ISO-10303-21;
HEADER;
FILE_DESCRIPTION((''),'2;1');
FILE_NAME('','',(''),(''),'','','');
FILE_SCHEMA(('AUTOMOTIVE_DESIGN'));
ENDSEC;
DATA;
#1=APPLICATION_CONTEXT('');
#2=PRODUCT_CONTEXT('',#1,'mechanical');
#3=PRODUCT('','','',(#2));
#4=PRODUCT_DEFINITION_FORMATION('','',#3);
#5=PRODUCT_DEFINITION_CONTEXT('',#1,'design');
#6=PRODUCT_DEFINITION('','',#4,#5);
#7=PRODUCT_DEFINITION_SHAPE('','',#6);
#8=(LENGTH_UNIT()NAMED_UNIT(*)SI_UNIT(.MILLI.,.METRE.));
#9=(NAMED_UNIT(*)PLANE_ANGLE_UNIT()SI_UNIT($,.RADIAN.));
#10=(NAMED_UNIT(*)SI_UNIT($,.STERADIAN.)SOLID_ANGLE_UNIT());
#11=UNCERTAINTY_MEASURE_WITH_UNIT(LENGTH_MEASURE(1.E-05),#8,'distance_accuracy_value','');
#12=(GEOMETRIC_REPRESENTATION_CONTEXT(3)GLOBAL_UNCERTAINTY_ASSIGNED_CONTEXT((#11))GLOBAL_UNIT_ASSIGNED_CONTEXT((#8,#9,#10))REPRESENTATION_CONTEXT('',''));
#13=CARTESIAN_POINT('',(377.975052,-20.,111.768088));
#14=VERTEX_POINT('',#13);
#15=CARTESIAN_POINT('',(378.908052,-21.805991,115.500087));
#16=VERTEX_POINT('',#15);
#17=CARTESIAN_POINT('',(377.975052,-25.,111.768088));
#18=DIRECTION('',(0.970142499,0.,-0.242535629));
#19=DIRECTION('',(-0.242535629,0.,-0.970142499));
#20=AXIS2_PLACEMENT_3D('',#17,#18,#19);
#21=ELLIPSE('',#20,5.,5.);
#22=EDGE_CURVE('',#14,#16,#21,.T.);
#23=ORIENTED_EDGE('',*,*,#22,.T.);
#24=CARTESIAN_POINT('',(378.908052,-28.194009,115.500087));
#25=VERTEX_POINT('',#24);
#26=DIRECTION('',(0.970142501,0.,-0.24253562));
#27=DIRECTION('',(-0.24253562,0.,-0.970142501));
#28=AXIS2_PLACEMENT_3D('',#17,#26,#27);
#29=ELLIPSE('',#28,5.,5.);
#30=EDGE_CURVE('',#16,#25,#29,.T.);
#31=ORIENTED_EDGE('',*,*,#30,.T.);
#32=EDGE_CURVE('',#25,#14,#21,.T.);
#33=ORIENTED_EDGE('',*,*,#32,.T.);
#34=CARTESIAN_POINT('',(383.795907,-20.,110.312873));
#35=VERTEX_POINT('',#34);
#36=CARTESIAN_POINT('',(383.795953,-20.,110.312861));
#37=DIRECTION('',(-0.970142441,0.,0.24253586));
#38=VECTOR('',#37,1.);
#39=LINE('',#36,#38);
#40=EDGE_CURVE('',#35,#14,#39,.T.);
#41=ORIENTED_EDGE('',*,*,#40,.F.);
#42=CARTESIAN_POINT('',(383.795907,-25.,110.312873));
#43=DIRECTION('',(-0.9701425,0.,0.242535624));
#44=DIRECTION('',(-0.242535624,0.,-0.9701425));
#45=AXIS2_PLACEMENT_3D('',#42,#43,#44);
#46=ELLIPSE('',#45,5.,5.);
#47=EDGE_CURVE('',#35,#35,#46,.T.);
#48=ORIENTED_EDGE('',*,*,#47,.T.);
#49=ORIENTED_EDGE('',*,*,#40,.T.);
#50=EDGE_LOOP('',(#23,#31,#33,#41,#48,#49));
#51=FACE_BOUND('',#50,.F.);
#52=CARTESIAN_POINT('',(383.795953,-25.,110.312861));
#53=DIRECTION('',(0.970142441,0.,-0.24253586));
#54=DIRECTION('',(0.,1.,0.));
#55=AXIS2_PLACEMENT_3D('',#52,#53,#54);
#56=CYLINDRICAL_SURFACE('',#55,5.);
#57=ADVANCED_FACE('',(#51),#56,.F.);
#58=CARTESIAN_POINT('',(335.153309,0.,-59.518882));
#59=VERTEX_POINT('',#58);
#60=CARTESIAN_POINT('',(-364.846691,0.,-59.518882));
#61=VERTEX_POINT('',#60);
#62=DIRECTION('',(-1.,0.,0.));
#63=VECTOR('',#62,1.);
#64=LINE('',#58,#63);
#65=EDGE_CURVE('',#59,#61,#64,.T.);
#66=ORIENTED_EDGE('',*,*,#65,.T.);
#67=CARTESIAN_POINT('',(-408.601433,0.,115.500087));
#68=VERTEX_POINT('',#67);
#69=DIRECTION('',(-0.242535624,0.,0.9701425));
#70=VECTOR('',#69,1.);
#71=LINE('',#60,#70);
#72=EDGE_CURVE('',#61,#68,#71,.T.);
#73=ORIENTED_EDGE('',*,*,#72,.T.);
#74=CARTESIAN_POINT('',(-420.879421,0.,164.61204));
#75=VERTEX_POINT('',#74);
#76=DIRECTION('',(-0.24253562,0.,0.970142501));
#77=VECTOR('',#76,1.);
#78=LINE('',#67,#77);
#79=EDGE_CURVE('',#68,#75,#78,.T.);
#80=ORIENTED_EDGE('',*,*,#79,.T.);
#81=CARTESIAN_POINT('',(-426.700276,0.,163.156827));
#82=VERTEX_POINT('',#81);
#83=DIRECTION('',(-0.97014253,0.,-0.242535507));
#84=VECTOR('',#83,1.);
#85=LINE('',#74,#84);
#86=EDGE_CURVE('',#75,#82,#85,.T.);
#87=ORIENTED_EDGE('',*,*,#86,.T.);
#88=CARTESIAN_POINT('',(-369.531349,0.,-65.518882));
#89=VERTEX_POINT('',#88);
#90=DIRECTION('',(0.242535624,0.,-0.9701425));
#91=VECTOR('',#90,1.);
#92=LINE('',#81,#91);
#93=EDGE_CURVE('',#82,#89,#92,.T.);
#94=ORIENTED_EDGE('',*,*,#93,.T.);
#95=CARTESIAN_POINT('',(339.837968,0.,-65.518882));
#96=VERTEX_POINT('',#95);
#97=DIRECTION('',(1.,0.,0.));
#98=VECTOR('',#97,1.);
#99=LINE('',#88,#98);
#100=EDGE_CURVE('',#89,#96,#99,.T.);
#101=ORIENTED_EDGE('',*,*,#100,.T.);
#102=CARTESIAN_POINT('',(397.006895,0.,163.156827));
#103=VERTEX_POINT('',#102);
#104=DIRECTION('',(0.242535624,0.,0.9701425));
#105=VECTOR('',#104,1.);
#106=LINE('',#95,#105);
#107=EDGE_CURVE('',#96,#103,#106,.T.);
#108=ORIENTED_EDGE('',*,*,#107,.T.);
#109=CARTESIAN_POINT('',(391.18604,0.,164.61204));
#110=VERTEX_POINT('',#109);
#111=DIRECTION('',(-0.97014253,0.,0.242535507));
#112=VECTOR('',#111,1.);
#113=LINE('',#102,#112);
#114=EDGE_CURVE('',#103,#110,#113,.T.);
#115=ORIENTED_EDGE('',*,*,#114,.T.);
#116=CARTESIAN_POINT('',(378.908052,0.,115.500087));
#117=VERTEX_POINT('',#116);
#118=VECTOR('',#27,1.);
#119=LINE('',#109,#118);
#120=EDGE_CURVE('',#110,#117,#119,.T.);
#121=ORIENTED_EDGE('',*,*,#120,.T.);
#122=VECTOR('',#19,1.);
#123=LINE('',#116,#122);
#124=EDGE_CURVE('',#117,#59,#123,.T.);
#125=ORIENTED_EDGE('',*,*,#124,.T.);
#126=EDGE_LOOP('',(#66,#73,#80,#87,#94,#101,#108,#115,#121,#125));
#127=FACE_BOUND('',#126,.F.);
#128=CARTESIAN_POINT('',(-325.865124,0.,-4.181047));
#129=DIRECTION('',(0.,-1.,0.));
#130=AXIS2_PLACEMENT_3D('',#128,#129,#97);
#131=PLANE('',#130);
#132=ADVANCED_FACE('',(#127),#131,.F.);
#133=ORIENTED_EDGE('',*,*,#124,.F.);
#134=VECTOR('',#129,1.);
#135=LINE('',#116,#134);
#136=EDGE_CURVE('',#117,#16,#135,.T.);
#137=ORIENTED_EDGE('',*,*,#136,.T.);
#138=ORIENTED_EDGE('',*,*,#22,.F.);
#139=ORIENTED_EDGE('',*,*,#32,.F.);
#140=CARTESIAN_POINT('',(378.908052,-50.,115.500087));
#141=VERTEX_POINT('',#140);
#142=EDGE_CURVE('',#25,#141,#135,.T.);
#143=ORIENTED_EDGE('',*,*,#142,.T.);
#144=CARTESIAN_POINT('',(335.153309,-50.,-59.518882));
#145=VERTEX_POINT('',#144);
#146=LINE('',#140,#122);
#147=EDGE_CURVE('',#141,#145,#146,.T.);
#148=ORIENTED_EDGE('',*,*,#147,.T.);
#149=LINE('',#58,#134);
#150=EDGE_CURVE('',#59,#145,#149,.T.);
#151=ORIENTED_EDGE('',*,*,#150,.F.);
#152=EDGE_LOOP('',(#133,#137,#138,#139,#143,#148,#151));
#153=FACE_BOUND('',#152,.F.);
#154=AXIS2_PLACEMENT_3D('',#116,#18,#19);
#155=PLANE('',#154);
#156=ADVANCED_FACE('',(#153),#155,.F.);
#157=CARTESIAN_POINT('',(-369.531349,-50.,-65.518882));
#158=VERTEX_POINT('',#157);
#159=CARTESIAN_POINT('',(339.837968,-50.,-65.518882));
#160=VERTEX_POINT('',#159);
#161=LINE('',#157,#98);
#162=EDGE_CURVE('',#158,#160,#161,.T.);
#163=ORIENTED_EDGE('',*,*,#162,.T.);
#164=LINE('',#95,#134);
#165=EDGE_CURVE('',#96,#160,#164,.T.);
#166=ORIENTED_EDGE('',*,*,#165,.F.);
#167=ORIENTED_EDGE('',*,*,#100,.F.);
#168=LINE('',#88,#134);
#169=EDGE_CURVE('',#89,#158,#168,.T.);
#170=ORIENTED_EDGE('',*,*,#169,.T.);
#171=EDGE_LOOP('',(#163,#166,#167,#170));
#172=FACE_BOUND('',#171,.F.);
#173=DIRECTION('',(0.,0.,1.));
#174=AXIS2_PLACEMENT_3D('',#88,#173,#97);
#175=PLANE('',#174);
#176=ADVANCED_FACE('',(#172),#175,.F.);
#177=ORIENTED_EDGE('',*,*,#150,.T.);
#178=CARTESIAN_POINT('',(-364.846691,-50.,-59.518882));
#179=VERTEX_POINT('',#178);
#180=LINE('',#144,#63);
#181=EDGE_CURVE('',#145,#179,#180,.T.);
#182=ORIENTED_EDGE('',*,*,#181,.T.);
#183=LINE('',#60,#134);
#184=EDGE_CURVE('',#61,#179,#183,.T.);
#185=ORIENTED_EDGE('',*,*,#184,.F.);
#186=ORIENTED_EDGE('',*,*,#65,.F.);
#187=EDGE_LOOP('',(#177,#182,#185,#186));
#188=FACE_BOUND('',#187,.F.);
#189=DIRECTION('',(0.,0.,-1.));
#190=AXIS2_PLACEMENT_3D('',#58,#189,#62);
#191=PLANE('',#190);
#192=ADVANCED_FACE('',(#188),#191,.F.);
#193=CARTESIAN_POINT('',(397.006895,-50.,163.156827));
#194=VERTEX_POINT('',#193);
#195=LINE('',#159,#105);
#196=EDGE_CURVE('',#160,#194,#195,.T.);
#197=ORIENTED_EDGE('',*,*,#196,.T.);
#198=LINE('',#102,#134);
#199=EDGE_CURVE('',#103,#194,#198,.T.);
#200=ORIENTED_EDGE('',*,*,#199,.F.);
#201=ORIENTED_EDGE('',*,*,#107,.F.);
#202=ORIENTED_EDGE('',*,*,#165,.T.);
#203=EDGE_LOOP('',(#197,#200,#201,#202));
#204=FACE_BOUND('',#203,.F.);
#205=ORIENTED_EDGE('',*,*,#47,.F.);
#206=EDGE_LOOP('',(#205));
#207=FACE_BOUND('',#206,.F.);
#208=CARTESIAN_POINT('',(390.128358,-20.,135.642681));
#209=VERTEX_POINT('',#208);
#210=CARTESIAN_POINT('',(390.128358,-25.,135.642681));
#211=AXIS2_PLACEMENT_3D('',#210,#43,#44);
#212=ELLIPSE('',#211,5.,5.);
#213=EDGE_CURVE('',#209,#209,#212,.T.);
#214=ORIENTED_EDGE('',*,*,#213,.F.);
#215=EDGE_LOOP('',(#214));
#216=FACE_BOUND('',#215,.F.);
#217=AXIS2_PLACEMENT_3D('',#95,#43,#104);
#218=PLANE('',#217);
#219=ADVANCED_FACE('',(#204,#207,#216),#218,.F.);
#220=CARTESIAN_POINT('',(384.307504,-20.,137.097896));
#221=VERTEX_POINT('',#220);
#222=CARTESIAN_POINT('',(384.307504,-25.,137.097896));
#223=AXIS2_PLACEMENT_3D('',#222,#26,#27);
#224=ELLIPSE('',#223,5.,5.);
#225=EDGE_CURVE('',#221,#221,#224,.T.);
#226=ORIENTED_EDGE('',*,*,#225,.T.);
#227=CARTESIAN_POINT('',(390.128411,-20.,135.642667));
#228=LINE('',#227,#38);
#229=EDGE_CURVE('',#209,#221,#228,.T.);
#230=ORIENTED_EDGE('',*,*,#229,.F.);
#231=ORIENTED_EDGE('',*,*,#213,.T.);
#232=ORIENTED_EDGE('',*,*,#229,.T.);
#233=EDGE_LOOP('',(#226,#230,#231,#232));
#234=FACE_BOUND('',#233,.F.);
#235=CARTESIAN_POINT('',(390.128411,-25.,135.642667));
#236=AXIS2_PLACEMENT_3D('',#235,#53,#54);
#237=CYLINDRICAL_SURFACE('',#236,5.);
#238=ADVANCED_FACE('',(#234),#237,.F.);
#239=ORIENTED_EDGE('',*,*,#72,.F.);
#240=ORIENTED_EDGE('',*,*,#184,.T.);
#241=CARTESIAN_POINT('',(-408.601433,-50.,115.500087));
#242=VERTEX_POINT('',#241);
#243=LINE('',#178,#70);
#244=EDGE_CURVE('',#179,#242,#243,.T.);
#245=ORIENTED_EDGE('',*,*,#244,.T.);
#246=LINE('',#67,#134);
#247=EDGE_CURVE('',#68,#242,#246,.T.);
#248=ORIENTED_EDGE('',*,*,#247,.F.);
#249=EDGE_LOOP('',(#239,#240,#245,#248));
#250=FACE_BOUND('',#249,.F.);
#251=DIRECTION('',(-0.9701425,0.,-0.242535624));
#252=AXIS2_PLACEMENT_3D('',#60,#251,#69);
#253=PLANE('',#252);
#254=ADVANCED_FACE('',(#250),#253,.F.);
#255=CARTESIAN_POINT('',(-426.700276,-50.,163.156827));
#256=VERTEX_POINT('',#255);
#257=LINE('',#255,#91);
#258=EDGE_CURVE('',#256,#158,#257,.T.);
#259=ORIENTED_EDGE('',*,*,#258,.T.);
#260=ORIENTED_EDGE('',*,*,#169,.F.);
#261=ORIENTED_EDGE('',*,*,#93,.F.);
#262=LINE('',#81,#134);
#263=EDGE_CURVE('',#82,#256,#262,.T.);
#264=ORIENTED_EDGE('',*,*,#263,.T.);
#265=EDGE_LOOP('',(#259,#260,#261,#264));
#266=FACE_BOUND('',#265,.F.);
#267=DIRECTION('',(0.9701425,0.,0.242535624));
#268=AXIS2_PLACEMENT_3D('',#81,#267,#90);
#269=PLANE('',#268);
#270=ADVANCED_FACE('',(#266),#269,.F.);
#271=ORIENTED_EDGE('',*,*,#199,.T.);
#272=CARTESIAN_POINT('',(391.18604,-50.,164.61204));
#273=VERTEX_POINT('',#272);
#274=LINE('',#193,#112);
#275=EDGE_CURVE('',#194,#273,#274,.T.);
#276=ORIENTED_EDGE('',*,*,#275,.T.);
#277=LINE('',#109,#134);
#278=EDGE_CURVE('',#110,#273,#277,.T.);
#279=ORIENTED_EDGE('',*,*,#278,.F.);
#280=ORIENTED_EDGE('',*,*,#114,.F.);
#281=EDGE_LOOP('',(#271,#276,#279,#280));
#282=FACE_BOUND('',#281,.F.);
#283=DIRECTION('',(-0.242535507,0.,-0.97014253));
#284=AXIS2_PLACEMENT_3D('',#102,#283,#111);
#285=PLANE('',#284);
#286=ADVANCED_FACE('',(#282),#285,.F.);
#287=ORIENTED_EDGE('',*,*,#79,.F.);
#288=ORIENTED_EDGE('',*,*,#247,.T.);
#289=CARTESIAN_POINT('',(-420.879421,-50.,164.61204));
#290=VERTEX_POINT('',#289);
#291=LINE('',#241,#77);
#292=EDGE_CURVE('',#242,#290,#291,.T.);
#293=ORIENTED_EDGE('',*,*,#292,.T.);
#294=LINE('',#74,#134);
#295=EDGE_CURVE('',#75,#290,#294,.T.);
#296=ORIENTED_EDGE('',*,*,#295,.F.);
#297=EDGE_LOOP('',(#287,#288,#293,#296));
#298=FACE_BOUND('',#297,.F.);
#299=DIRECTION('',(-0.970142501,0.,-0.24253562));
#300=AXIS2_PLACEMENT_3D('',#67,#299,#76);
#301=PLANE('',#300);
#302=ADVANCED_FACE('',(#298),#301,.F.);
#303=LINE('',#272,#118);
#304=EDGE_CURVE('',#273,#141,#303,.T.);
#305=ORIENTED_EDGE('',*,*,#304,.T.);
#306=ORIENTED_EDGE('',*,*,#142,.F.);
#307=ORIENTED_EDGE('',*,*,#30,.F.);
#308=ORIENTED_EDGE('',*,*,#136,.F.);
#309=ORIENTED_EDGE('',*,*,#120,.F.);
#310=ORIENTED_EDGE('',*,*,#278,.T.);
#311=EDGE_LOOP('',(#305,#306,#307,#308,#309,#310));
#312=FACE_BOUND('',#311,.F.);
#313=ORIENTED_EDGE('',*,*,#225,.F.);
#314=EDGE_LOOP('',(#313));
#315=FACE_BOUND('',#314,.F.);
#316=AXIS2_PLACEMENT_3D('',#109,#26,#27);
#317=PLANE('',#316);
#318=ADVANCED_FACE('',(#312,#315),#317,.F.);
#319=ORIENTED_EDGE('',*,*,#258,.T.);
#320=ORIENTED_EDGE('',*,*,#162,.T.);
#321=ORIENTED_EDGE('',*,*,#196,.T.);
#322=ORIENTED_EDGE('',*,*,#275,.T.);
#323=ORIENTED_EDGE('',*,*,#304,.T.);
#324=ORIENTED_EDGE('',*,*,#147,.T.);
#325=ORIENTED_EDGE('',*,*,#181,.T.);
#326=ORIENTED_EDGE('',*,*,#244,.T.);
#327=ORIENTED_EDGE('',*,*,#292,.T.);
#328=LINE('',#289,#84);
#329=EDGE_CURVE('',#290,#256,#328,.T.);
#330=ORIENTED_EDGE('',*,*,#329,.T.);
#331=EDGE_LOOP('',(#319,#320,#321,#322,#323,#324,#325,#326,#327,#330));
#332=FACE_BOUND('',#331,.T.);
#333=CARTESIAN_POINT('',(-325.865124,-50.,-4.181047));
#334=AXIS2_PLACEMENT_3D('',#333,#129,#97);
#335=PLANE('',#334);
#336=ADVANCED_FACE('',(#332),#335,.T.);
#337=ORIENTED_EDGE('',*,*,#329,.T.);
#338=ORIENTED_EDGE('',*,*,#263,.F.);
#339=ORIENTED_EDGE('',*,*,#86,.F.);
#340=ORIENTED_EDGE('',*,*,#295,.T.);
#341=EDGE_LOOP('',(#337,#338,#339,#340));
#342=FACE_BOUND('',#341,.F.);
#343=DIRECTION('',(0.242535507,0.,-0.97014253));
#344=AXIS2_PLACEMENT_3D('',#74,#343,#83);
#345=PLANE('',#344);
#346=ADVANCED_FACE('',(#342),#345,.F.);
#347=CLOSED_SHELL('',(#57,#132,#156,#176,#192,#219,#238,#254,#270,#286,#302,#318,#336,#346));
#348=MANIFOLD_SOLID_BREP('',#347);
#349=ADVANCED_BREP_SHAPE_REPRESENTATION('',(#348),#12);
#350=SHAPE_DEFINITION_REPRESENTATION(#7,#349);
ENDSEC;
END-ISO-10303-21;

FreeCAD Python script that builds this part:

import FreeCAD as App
import Part
import Sketcher

V = App.Vector
Q = App.Units.Quantity

doc = App.newDocument("Part")
body = doc.addObject("PartDesign::Body", "Body")

# Sketch on XZ plane
sketch1 = doc.addObject("Sketcher::SketchObject", "Sketch")
body.addObject(sketch1)
sketch1.AttachmentSupport = (doc.XZ_Plane, [""])
sketch1.MapMode = "FlatFace"
sketch1.addGeometry([
    Part.LineSegment(V(-364.846691, -59.518882, 0), V(-408.601433, 115.500087, 0)),  # 0
    Part.LineSegment(V(-408.601433, 115.500087, 0), V(-420.879421, 164.61204, 0)),  # 1
    Part.LineSegment(V(-420.879421, 164.61204, 0), V(-426.700276, 163.156827, 0)),  # 2
    Part.LineSegment(V(-426.700276, 163.156827, 0), V(-369.531349, -65.518882, 0)),  # 3
    Part.LineSegment(V(-369.531349, -65.518882, 0), V(339.837968, -65.518882, 0)),  # 4
    Part.LineSegment(V(339.837968, -65.518882, 0), V(397.006895, 163.156827, 0)),  # 5
    Part.LineSegment(V(397.006895, 163.156827, 0), V(391.18604, 164.61204, 0)),  # 6
    Part.LineSegment(V(391.18604, 164.61204, 0), V(378.908052, 115.500087, 0)),  # 7
    Part.LineSegment(V(378.908052, 115.500087, 0), V(335.153309, -59.518882, 0)),  # 8
    Part.LineSegment(V(335.153309, -59.518882, 0), V(-364.846691, -59.518882, 0)),  # 9
], False)
sketch1.addConstraint([
    Sketcher.Constraint("Coincident", 0, 2, 1, 1),
    Sketcher.Constraint("Coincident", 1, 2, 2, 1),
    Sketcher.Constraint("Coincident", 2, 2, 3, 1),
    Sketcher.Constraint("Coincident", 3, 2, 4, 1),
    Sketcher.Constraint("Coincident", 4, 2, 5, 1),
    Sketcher.Constraint("Coincident", 5, 2, 6, 1),
    Sketcher.Constraint("Coincident", 6, 2, 7, 1),
    Sketcher.Constraint("Coincident", 7, 2, 8, 1),
    Sketcher.Constraint("Coincident", 8, 2, 9, 1),
    Sketcher.Constraint("Coincident", 9, 2, 0, 1),
    Sketcher.Constraint("Horizontal", 4),
    Sketcher.Constraint("Horizontal", 9),
    Sketcher.Constraint("Parallel", 0, 1),
    Sketcher.Constraint("Perpendicular", 1, 2),
    Sketcher.Constraint("Perpendicular", 2, 3),
    Sketcher.Constraint("Perpendicular", 5, 6),
    Sketcher.Constraint("Perpendicular", 6, 7),
    Sketcher.Constraint("Parallel", 7, 8),
    Sketcher.Constraint("Horizontal", 2, 2, 5, 2),
    Sketcher.Constraint("Horizontal", 1, 2, 6, 2),
    Sketcher.Constraint("Horizontal", 0, 2, 7, 2),
    Sketcher.Constraint("Equal", 3, 5),
    Sketcher.Constraint("DistanceX", 9, 2, 9, 1, Q("700 mm")),
    Sketcher.Constraint("Distance", 2, Q("6 mm")),
    Sketcher.Constraint("DistanceY", 4, 2, 8, 2, Q("6 mm")),
    Sketcher.Constraint("DistanceX", 0, 2, 4, 2, Q("748.439401 mm")),
    Sketcher.Constraint("DistanceX", 4, 1, 4, 2, Q("709.369317 mm")),
    Sketcher.Constraint("DistanceX", 1, 2, -1, 1, Q("420.879421 mm")),
    Sketcher.Constraint("DistanceY", -1, 1, 1, 2, Q("164.61204 mm")),
    Sketcher.Constraint("DistanceX", 3, 2, -1, 1, Q("369.531349 mm")),
])
pad1 = doc.addObject("PartDesign::Pad", "Pad")
body.addObject(pad1)
pad1.Profile = sketch1
pad1.Length = 50

# Sketch on an angled plane
sketch2 = doc.addObject("Sketcher::SketchObject", "Sketch001")
body.addObject(sketch2)
sketch2.Placement = App.Placement(V(335.263706, 0, -83.815927), App.Rotation(V(0, 1, 0), V(0.24253586, 0, 0.970142441), V(0.970142441, 0, -0.24253586), "ZXY"))
sketch2.addGeometry([
    Part.Circle(V(-25, 226.212755, 0), V(0, 0, 1), 5),
    Part.Circle(V(-25, 200.103387, 0), V(0, 0, 1), 5),
], False)
sketch2.addConstraint([
    Sketcher.Constraint("Equal", 0, 1),
    Sketcher.Constraint("Vertical", 0, 3, 1, 3),
    Sketcher.Constraint("Diameter", 0, Q("10 mm")),
    Sketcher.Constraint("DistanceX", 0, 3, -1, 1, Q("25 mm")),
    Sketcher.Constraint("DistanceY", -1, 1, 0, 3, Q("226.212755 mm")),
    Sketcher.Constraint("DistanceY", -1, 1, 1, 3, Q("200.103387 mm")),
])
pocket1 = doc.addObject("PartDesign::Pocket", "Pocket")
body.addObject(pocket1)
pocket1.Profile = sketch2
pocket1.Length = 149

doc.recompute()
